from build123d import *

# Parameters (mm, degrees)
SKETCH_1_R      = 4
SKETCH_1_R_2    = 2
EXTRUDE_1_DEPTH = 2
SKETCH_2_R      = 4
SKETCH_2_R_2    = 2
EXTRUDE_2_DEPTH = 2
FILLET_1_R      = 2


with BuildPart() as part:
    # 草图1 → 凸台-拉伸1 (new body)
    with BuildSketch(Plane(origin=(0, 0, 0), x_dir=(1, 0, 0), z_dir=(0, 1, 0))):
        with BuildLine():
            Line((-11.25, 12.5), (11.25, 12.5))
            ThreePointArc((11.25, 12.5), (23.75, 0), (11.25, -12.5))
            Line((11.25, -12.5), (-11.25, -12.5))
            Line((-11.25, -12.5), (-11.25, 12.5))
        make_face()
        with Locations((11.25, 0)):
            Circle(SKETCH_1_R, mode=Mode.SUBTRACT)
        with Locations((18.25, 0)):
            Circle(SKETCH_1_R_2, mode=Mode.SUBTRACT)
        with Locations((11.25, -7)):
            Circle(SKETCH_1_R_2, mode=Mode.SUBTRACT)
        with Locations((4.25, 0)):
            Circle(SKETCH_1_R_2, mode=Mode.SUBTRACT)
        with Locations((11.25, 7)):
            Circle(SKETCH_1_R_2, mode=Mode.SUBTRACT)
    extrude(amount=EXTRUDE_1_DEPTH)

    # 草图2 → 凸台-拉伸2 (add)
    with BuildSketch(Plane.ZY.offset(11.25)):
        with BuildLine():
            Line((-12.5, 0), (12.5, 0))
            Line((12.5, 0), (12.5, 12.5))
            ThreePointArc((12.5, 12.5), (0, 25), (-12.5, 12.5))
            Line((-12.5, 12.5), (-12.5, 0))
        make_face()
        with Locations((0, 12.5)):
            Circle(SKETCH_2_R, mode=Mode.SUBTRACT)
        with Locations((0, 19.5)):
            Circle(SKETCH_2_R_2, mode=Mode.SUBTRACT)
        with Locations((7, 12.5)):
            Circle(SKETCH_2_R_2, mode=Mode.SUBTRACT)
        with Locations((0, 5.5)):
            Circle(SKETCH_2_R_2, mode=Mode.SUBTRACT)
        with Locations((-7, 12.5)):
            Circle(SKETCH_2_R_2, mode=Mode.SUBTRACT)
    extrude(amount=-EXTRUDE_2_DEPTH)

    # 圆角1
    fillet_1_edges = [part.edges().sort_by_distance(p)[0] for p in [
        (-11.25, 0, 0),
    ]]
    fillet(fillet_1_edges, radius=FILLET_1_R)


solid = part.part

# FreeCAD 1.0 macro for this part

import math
import FreeCAD as App
import Part
import Sketcher
Q = App.Units.Quantity


def edges_at(feature, points):
    """Names of the edges that pass closest to the given points."""
    edges = feature.Shape.Edges
    near = lambda p: min(range(len(edges)), key=lambda i: edges[i].distToShape(Part.Vertex(*p))[0])
    return sorted({f"Edge{near(p) + 1}" for p in points})

doc = App.newDocument("Part")
body = doc.addObject("PartDesign::Body", "Body")

sketch1 = body.newObject("Sketcher::SketchObject", "Sketch")
sketch1.AttachmentSupport = (doc.getObject("XZ_Plane"), [""])
sketch1.MapMode = "FlatFace"
sketch1.addGeometry(Part.LineSegment(App.Vector(11.2, -12.5, 0), App.Vector(-11.2, -12.5, 0)), False)
sketch1.addGeometry(Part.LineSegment(App.Vector(-11.2, -12.5, 0), App.Vector(-11.2, 12.5, 0)), False)
sketch1.addGeometry(Part.LineSegment(App.Vector(-11.2, 12.5, 0), App.Vector(11.2, 12.5, 0)), False)
sketch1.addGeometry(Part.ArcOfCircle(Part.Circle(App.Vector(11.2, 0, 0), App.Vector(0, 0, 1), 12.5), math.radians(-90), math.radians(90)), False)
sketch1.addGeometry(Part.Circle(App.Vector(11.2, 7, 0), App.Vector(0, 0, 1), 2), False)
sketch1.addGeometry(Part.Circle(App.Vector(18.2, 0, 0), App.Vector(0, 0, 1), 2), False)
sketch1.addGeometry(Part.Circle(App.Vector(11.2, 0, 0), App.Vector(0, 0, 1), 4), False)
sketch1.addGeometry(Part.Circle(App.Vector(4.2, 0, 0), App.Vector(0, 0, 1), 2), False)
sketch1.addGeometry(Part.Circle(App.Vector(11.2, -7, 0), App.Vector(0, 0, 1), 2), False)
sketch1.addConstraint(Sketcher.Constraint("Coincident", 0, 2, 1, 1))
sketch1.addConstraint(Sketcher.Constraint("Coincident", 1, 2, 2, 1))
sketch1.addConstraint(Sketcher.Constraint("Tangent", 2, 2, 3, 2))
sketch1.addConstraint(Sketcher.Constraint("Tangent", 3, 1, 0, 1))
sketch1.addConstraint(Sketcher.Constraint("Horizontal", 0))
sketch1.addConstraint(Sketcher.Constraint("Vertical", 1))
sketch1.addConstraint(Sketcher.Constraint("Horizontal", 2))
sketch1.addConstraint(Sketcher.Constraint("Coincident", 6, 3, 3, 3))
sketch1.addConstraint(Sketcher.Constraint("Equal", 4, 5))
sketch1.addConstraint(Sketcher.Constraint("Equal", 5, 7))
sketch1.addConstraint(Sketcher.Constraint("Equal", 7, 8))
sketch1.addConstraint(Sketcher.Constraint("Symmetric", 0, 2, 2, 2, -1, 1))
sketch1.addConstraint(Sketcher.Constraint("Symmetric", 4, 3, 8, 3, -1))
sketch1.addConstraint(Sketcher.Constraint("PointOnObject", 5, 3, -1))
sketch1.addConstraint(Sketcher.Constraint("PointOnObject", 7, 3, -1))
sketch1.addConstraint(Sketcher.Constraint("Vertical", 3, 3, 4, 3))
sketch1.addConstraint(Sketcher.Constraint("Diameter", 4, Q("4 mm")))
sketch1.addConstraint(Sketcher.Constraint("Diameter", 6, Q("8 mm")))
sketch1.addConstraint(Sketcher.Constraint("Radius", 3, Q("12.5 mm")))
sketch1.addConstraint(Sketcher.Constraint("DistanceX", 0, 2, 0, 1, Q("22.5 mm")))
sketch1.addConstraint(Sketcher.Constraint("DistanceY", -1, 1, 4, 3, Q("7 mm")))
sketch1.addConstraint(Sketcher.Constraint("DistanceX", 3, 3, 5, 3, Q("7 mm")))
sketch1.addConstraint(Sketcher.Constraint("DistanceX", 7, 3, 3, 3, Q("7 mm")))
pad1 = body.newObject("PartDesign::Pad", "Pad")
pad1.Profile = sketch1
pad1.Length = 2
pad1.Reversed = True

sketch2 = body.newObject("Sketcher::SketchObject", "Sketch001")
sketch2.AttachmentSupport = (doc.getObject("YZ_Plane"), [""])
sketch2.MapMode = "FlatFace"
sketch2.AttachmentOffset = App.Placement(App.Vector(0, 0, -11.25), App.Rotation())
sketch2.addGeometry(Part.LineSegment(App.Vector(0, -12.5, 0), App.Vector(0, 12.5, 0)), False)
sketch2.addGeometry(Part.LineSegment(App.Vector(0, 12.5, 0), App.Vector(12.5, 12.5, 0)), False)
sketch2.addGeometry(Part.ArcOfCircle(Part.Circle(App.Vector(12.5, 0, 0), App.Vector(0, 0, 1), 12.5), math.radians(-90), math.radians(90)), False)
sketch2.addGeometry(Part.LineSegment(App.Vector(12.5, -12.5, 0), App.Vector(0, -12.5, 0)), False)
sketch2.addGeometry(Part.Circle(App.Vector(5.5, 0, 0), App.Vector(0, 0, 1), 2), False)
sketch2.addGeometry(Part.Circle(App.Vector(12.5, -7, 0), App.Vector(0, 0, 1), 2), False)
sketch2.addGeometry(Part.Circle(App.Vector(12.5, 0, 0), App.Vector(0, 0, 1), 4), False)
sketch2.addGeometry(Part.Circle(App.Vector(12.5, 7, 0), App.Vector(0, 0, 1), 2), False)
sketch2.addGeometry(Part.Circle(App.Vector(19.5, 0, 0), App.Vector(0, 0, 1), 2), False)
sketch2.addConstraint(Sketcher.Constraint("Coincident", 0, 2, 1, 1))
sketch2.addConstraint(Sketcher.Constraint("Tangent", 1, 2, 2, 2))
sketch2.addConstraint(Sketcher.Constraint("Tangent", 2, 1, 3, 1))
sketch2.addConstraint(Sketcher.Constraint("Coincident", 3, 2, 0, 1))
sketch2.addConstraint(Sketcher.Constraint("Vertical", 0))
sketch2.addConstraint(Sketcher.Constraint("Horizontal", 1))
sketch2.addConstraint(Sketcher.Constraint("Horizontal", 3))
sketch2.addConstraint(Sketcher.Constraint("Coincident", 6, 3, 2, 3))
sketch2.addConstraint(Sketcher.Constraint("Equal", 4, 5))
sketch2.addConstraint(Sketcher.Constraint("Equal", 5, 7))
sketch2.addConstraint(Sketcher.Constraint("Equal", 7, 8))
sketch2.addConstraint(Sketcher.Constraint("Symmetric", 0, 2, 3, 2, -1, 1))
sketch2.addConstraint(Sketcher.Constraint("Symmetric", 5, 3, 7, 3, -1))
sketch2.addConstraint(Sketcher.Constraint("PointOnObject", 4, 3, -1))
sketch2.addConstraint(Sketcher.Constraint("PointOnObject", 8, 3, -1))
sketch2.addConstraint(Sketcher.Constraint("Vertical", 2, 3, 5, 3))
sketch2.addConstraint(Sketcher.Constraint("Diameter", 4, Q("4 mm")))
sketch2.addConstraint(Sketcher.Constraint("Diameter", 6, Q("8 mm")))
sketch2.addConstraint(Sketcher.Constraint("Radius", 2, Q("12.5 mm")))
sketch2.addConstraint(Sketcher.Constraint("DistanceX", 1, 1, 1, 2, Q("12.5 mm")))
sketch2.addConstraint(Sketcher.Constraint("DistanceY", 5, 3, -1, 1, Q("7 mm")))
sketch2.addConstraint(Sketcher.Constraint("DistanceX", 4, 3, 2, 3, Q("7 mm")))
sketch2.addConstraint(Sketcher.Constraint("DistanceX", 2, 3, 8, 3, Q("7 mm")))
pad2 = body.newObject("PartDesign::Pad", "Pad001")
pad2.Profile = sketch2
pad2.Length = 2
doc.recompute()

fillet = body.newObject("PartDesign::Fillet", "Fillet")
fillet.Base = (pad2, edges_at(pad2, [(-11.25, 0, 0)]))
fillet.Radius = 2

doc.recompute()
